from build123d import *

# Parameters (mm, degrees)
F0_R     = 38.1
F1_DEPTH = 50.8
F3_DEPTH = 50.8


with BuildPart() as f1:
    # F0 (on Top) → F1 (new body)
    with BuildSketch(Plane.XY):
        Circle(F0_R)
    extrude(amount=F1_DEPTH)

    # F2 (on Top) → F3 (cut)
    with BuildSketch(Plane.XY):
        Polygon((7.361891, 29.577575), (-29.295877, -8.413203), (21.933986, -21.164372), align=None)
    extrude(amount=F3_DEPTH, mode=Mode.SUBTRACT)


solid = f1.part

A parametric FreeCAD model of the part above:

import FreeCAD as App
import Part
import Sketcher
Q = App.Units.Quantity


def add_polygon(sketch, points):
    """Adds a closed chain of lines whose ends are joined by coincident constraints."""
    first, n = sketch.GeometryCount, len(points)
    for a, b in zip(points, points[1:] + points[:1]):
        sketch.addGeometry(Part.LineSegment(App.Vector(*a, 0), App.Vector(*b, 0)), False)
    for i in range(n):
        sketch.addConstraint(Sketcher.Constraint("Coincident", first + i, 2, first + (i + 1) % n, 1))

doc = App.newDocument("Part")
body = doc.addObject("PartDesign::Body", "Body")

sketch1 = body.newObject("Sketcher::SketchObject", "Sketch")
sketch1.AttachmentSupport = (doc.getObject("XY_Plane"), [""])
sketch1.MapMode = "FlatFace"
sketch1.addGeometry(Part.Circle(App.Vector(0, 0, 0), App.Vector(0, 0, 1), 38), False)
sketch1.addConstraint(Sketcher.Constraint("Coincident", 0, 3, -1, 1))
sketch1.addConstraint(Sketcher.Constraint("Diameter", 0, Q("3 in")))
pad1 = body.newObject("PartDesign::Pad", "Pad")
pad1.Profile = sketch1
pad1.Length = Q("2 in")

sketch2 = body.newObject("Sketcher::SketchObject", "Sketch001")
sketch2.AttachmentSupport = (doc.getObject("XY_Plane"), [""])
sketch2.MapMode = "FlatFace"
add_polygon(sketch2, [(7, 30), (-29, -8), (22, -21)])
sketch2.addConstraint(Sketcher.Constraint("Equal", 0, 1))
sketch2.addConstraint(Sketcher.Constraint("Equal", 1, 2))
sketch2.addConstraint(Sketcher.Constraint("DistanceY", 0, 2, 2, 2, Q("1.4956999 in")))
sketch2.addConstraint(Sketcher.Constraint("Distance", 0, 52.792908))
sketch2.addConstraint(Sketcher.Constraint("DistanceY", 1, 2, -1, 1, 21.164372))
sketch2.addConstraint(Sketcher.Constraint("DistanceX", -1, 1, 2, 2, 7.361891))
pocket1 = body.newObject("PartDesign::Pocket", "Pocket")
pocket1.Profile = sketch2
pocket1.Length = Q("2 in")
pocket1.Reversed = True

doc.recompute()
